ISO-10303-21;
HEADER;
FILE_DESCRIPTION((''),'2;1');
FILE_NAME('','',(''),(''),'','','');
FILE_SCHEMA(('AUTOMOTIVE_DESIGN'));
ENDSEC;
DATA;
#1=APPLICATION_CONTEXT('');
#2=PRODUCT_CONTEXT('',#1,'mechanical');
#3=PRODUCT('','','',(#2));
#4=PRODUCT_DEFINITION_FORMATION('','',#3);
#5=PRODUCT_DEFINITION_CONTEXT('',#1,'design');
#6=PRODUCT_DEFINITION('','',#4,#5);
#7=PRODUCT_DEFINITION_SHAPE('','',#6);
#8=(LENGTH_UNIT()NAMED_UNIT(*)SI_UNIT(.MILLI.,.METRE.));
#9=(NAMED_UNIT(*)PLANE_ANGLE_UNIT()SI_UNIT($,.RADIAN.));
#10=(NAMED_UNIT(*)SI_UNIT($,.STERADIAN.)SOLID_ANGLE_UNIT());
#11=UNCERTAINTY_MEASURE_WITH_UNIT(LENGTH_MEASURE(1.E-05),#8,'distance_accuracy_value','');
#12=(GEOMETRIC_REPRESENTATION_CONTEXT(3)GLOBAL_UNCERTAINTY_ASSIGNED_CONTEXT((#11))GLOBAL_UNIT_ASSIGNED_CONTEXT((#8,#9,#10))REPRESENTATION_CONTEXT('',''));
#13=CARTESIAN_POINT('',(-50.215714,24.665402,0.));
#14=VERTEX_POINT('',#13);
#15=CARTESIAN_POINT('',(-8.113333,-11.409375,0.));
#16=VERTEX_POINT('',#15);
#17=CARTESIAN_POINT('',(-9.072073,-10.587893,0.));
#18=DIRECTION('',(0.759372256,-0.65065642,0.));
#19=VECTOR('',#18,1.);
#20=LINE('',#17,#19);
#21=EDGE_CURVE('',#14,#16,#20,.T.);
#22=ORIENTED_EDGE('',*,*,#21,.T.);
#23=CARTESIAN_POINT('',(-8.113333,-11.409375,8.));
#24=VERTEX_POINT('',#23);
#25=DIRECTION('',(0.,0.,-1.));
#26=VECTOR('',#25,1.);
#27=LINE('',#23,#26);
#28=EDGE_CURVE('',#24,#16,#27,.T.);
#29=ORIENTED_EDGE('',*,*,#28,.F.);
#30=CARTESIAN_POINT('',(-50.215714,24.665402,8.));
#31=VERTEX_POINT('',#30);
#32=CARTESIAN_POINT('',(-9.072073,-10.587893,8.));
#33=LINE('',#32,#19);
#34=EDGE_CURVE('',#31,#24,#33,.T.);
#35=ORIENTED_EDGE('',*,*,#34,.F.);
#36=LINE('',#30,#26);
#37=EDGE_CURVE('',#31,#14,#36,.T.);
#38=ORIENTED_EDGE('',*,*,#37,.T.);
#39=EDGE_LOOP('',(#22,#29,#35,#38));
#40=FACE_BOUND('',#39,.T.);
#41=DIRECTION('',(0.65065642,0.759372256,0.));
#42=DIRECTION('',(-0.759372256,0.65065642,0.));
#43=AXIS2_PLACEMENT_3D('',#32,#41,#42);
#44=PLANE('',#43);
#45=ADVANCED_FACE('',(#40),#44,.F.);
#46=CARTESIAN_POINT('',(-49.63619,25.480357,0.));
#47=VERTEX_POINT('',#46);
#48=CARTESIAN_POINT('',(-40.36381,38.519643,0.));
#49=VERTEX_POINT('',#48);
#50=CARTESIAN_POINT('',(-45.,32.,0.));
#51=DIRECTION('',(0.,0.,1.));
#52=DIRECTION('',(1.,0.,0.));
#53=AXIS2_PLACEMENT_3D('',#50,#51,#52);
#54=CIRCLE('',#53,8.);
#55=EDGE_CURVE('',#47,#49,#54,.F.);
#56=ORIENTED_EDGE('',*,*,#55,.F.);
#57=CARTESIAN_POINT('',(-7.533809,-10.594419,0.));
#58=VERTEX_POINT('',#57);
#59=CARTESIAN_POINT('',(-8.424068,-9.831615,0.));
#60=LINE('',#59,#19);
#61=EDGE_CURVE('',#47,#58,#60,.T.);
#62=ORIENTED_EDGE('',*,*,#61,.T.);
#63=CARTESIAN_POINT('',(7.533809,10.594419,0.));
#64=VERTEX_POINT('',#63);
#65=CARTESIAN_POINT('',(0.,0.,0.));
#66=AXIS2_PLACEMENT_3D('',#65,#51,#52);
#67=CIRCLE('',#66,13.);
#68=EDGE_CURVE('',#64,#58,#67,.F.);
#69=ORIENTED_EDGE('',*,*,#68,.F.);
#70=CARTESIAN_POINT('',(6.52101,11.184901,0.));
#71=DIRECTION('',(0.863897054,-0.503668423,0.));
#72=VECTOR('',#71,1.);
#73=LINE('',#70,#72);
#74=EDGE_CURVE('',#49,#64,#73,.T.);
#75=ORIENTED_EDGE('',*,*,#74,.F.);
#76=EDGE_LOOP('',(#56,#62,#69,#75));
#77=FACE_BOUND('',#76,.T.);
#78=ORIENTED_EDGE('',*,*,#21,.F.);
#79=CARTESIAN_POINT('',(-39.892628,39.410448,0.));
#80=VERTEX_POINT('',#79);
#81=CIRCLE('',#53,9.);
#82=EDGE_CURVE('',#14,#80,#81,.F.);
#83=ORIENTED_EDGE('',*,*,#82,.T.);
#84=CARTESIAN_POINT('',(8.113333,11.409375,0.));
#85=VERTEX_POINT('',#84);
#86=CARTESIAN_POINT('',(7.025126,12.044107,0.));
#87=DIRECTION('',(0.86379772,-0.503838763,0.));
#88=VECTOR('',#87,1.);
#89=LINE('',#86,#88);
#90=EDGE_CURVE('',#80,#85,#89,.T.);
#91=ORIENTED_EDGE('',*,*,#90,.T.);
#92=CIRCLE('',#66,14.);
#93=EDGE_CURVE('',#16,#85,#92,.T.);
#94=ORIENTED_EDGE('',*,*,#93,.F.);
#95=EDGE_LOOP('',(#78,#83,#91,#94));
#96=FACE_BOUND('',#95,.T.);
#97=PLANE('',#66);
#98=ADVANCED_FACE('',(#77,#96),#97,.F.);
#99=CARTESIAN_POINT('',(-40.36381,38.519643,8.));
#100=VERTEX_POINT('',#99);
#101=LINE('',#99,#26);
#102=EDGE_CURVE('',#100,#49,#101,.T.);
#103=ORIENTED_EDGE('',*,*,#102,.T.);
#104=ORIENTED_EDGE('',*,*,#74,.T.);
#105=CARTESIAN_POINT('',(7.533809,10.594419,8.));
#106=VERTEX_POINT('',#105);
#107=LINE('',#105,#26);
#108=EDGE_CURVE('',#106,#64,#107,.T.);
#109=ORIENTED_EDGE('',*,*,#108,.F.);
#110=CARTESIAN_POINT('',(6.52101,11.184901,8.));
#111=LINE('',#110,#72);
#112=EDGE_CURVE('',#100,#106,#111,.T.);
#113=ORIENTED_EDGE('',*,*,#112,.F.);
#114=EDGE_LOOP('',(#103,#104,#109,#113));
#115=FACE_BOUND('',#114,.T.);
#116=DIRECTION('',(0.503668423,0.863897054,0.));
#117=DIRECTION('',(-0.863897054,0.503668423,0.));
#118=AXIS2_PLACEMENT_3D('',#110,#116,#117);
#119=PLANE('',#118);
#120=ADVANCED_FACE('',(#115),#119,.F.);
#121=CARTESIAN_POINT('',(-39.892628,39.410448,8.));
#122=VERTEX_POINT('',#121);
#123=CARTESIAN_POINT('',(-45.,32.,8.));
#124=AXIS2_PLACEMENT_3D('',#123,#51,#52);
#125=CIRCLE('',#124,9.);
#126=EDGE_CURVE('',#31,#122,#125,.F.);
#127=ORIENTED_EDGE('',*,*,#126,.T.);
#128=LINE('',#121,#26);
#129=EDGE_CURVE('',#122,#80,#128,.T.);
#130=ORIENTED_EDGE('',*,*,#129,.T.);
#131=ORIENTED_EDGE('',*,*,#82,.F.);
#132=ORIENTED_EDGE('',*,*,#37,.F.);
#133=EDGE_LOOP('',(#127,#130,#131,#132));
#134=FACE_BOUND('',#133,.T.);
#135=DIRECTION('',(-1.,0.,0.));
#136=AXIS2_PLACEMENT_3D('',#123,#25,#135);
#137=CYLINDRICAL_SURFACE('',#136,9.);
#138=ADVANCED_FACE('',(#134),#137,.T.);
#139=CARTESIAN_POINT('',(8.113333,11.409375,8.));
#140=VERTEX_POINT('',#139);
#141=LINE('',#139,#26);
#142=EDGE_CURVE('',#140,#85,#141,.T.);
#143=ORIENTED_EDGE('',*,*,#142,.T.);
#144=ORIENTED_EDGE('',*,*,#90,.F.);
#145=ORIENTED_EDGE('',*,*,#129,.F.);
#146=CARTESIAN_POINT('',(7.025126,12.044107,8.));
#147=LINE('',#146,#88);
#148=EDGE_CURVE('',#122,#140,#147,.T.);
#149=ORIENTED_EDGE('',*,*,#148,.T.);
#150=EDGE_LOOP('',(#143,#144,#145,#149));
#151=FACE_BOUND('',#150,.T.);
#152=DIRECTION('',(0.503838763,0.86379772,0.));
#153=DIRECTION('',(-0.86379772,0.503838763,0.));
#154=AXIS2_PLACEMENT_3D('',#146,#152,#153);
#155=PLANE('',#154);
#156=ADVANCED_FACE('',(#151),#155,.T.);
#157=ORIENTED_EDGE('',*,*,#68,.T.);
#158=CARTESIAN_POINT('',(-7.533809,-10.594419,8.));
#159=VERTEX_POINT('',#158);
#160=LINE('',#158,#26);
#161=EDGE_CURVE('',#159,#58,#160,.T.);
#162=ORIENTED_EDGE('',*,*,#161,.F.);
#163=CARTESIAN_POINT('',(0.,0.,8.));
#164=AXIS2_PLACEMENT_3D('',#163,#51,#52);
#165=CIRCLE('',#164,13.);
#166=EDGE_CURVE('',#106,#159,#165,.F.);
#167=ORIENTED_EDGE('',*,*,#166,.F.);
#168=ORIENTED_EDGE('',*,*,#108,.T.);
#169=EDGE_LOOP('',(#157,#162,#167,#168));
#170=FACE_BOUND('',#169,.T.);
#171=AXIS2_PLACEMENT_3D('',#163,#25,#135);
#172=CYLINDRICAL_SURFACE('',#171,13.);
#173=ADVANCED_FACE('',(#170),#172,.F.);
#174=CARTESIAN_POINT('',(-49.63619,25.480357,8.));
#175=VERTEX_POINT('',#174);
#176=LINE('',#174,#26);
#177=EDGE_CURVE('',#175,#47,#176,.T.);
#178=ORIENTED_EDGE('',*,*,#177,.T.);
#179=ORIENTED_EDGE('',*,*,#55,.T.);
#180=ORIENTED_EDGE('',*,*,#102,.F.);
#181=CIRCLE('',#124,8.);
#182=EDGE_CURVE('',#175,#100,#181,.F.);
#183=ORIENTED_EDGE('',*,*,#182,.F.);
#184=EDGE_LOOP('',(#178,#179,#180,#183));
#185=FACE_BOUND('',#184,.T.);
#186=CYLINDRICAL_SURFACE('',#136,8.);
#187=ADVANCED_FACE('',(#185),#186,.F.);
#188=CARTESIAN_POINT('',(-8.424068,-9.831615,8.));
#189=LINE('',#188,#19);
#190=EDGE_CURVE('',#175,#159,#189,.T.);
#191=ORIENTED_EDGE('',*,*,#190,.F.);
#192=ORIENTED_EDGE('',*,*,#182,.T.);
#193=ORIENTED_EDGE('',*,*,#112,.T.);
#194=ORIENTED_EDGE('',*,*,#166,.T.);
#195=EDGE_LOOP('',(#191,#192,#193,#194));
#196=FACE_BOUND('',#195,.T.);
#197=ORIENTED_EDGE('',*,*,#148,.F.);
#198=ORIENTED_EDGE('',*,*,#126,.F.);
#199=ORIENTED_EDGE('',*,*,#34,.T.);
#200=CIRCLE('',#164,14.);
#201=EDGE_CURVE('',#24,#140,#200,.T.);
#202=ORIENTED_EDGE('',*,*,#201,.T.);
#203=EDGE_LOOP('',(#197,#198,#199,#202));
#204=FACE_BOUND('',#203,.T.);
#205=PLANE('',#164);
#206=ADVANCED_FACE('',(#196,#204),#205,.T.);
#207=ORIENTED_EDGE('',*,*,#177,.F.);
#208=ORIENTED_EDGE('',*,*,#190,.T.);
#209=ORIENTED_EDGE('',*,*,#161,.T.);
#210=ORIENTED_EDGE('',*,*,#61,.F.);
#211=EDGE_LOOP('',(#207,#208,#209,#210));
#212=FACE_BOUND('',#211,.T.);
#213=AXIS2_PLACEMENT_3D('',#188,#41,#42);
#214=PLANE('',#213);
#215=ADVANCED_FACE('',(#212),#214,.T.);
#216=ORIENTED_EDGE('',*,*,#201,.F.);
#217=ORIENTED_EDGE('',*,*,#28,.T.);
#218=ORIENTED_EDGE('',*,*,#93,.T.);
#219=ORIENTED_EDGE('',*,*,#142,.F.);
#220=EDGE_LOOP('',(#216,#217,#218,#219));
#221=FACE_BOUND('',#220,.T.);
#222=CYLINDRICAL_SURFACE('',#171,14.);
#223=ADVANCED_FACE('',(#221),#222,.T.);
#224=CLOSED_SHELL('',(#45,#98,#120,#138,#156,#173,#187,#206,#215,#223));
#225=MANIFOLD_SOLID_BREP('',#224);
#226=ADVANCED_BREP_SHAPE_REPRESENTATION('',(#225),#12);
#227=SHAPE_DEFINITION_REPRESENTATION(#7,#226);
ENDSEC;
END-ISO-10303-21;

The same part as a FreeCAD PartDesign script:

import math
import FreeCAD as App
import Part
import Sketcher
from FreeCAD import Vector
Q = App.Units.Quantity

doc = App.newDocument("Part")
body = doc.addObject("PartDesign::Body", "Body")

sketch1 = body.newObject("Sketcher::SketchObject", "Sketch")
sketch1.AttachmentSupport = (doc.getObject("XY_Plane"), [""])
sketch1.MapMode = "FlatFace"
sketch1.addGeometry(Part.LineSegment(Vector(8.113333, 11.409375, 0), Vector(-39.892628, 39.410448, 0)), False)
sketch1.addGeometry(Part.ArcOfCircle(Part.Circle(Vector(-45, 32, 0), Vector(0, 0, 1), 9), math.radians(55.424909), math.radians(234.582945)), False)
sketch1.addGeometry(Part.LineSegment(Vector(-50.215714, 24.665402, 0), Vector(-8.113333, -11.409375, 0)), False)
sketch1.addGeometry(Part.ArcOfCircle(Part.Circle(Vector(0, 0, 0), Vector(0, 0, 1), 14), math.radians(-125.417055), math.radians(54.582945)), False)
sketch1.addGeometry(Part.LineSegment(Vector(-7.533809, -10.594419, 0), Vector(-49.63619, 25.480357, 0)), False)
sketch1.addGeometry(Part.ArcOfCircle(Part.Circle(Vector(-45, 32, 0), Vector(0, 0, 1), 8), math.radians(54.582945), math.radians(234.582945)), False)
sketch1.addGeometry(Part.LineSegment(Vector(-40.36381, 38.519643, 0), Vector(7.533809, 10.594419, 0)), False)
sketch1.addGeometry(Part.ArcOfCircle(Part.Circle(Vector(0, 0, 0), Vector(0, 0, 1), 13), math.radians(-125.417055), math.radians(54.582945)), False)
sketch1.addConstraint(Sketcher.Constraint("Coincident", 0, 2, 1, 1))
sketch1.addConstraint(Sketcher.Constraint("Coincident", 1, 2, 2, 1))
sketch1.addConstraint(Sketcher.Constraint("Coincident", 2, 2, 3, 1))
sketch1.addConstraint(Sketcher.Constraint("Coincident", 3, 2, 0, 1))
sketch1.addConstraint(Sketcher.Constraint("Coincident", 4, 2, 5, 2))
sketch1.addConstraint(Sketcher.Constraint("Coincident", 5, 1, 6, 1))
sketch1.addConstraint(Sketcher.Constraint("Coincident", 6, 2, 7, 2))
sketch1.addConstraint(Sketcher.Constraint("Coincident", 7, 1, 4, 1))
sketch1.addConstraint(Sketcher.Constraint("Coincident", 3, 3, -1, 1))
sketch1.addConstraint(Sketcher.Constraint("Coincident", 7, 3, -1, 1))
sketch1.addConstraint(Sketcher.Constraint("Coincident", 5, 3, 1, 3))
sketch1.addConstraint(Sketcher.Constraint("Parallel", 2, 4))
sketch1.addConstraint(Sketcher.Constraint("Equal", 2, 4))
sketch1.addConstraint(Sketcher.Constraint("Equal", 4, 6))
sketch1.addConstraint(Sketcher.Constraint("Radius", 1, Q("9 mm")))
sketch1.addConstraint(Sketcher.Constraint("Radius", 3, Q("14 mm")))
sketch1.addConstraint(Sketcher.Constraint("Radius", 5, Q("8 mm")))
sketch1.addConstraint(Sketcher.Constraint("DistanceX", 1, 3, -1, 1, Q("45 mm")))
sketch1.addConstraint(Sketcher.Constraint("DistanceY", -1, 1, 1, 3, Q("32 mm")))
sketch1.addConstraint(Sketcher.Constraint("DistanceY", -1, 1, 0, 2, Q("39.410448 mm")))
sketch1.addConstraint(Sketcher.Constraint("DistanceX", 4, 2, -1, 1, Q("49.63619 mm")))
sketch1.addConstraint(Sketcher.Constraint("DistanceX", 5, 1, -1, 1, Q("40.36381 mm")))
sketch1.addConstraint(Sketcher.Constraint("DistanceX", -1, 1, 6, 2, Q("7.533809 mm")))
sketch1.addConstraint(Sketcher.Constraint("DistanceY", 2, 2, 3, 2, Q("22.818749 mm")))
sketch1.addConstraint(Sketcher.Constraint("DistanceX", 0, 2, 3, 2, Q("48.005961 mm")))
pad1 = body.newObject("PartDesign::Pad", "Pad")
pad1.Profile = sketch1
pad1.Length = 8

doc.recompute()
